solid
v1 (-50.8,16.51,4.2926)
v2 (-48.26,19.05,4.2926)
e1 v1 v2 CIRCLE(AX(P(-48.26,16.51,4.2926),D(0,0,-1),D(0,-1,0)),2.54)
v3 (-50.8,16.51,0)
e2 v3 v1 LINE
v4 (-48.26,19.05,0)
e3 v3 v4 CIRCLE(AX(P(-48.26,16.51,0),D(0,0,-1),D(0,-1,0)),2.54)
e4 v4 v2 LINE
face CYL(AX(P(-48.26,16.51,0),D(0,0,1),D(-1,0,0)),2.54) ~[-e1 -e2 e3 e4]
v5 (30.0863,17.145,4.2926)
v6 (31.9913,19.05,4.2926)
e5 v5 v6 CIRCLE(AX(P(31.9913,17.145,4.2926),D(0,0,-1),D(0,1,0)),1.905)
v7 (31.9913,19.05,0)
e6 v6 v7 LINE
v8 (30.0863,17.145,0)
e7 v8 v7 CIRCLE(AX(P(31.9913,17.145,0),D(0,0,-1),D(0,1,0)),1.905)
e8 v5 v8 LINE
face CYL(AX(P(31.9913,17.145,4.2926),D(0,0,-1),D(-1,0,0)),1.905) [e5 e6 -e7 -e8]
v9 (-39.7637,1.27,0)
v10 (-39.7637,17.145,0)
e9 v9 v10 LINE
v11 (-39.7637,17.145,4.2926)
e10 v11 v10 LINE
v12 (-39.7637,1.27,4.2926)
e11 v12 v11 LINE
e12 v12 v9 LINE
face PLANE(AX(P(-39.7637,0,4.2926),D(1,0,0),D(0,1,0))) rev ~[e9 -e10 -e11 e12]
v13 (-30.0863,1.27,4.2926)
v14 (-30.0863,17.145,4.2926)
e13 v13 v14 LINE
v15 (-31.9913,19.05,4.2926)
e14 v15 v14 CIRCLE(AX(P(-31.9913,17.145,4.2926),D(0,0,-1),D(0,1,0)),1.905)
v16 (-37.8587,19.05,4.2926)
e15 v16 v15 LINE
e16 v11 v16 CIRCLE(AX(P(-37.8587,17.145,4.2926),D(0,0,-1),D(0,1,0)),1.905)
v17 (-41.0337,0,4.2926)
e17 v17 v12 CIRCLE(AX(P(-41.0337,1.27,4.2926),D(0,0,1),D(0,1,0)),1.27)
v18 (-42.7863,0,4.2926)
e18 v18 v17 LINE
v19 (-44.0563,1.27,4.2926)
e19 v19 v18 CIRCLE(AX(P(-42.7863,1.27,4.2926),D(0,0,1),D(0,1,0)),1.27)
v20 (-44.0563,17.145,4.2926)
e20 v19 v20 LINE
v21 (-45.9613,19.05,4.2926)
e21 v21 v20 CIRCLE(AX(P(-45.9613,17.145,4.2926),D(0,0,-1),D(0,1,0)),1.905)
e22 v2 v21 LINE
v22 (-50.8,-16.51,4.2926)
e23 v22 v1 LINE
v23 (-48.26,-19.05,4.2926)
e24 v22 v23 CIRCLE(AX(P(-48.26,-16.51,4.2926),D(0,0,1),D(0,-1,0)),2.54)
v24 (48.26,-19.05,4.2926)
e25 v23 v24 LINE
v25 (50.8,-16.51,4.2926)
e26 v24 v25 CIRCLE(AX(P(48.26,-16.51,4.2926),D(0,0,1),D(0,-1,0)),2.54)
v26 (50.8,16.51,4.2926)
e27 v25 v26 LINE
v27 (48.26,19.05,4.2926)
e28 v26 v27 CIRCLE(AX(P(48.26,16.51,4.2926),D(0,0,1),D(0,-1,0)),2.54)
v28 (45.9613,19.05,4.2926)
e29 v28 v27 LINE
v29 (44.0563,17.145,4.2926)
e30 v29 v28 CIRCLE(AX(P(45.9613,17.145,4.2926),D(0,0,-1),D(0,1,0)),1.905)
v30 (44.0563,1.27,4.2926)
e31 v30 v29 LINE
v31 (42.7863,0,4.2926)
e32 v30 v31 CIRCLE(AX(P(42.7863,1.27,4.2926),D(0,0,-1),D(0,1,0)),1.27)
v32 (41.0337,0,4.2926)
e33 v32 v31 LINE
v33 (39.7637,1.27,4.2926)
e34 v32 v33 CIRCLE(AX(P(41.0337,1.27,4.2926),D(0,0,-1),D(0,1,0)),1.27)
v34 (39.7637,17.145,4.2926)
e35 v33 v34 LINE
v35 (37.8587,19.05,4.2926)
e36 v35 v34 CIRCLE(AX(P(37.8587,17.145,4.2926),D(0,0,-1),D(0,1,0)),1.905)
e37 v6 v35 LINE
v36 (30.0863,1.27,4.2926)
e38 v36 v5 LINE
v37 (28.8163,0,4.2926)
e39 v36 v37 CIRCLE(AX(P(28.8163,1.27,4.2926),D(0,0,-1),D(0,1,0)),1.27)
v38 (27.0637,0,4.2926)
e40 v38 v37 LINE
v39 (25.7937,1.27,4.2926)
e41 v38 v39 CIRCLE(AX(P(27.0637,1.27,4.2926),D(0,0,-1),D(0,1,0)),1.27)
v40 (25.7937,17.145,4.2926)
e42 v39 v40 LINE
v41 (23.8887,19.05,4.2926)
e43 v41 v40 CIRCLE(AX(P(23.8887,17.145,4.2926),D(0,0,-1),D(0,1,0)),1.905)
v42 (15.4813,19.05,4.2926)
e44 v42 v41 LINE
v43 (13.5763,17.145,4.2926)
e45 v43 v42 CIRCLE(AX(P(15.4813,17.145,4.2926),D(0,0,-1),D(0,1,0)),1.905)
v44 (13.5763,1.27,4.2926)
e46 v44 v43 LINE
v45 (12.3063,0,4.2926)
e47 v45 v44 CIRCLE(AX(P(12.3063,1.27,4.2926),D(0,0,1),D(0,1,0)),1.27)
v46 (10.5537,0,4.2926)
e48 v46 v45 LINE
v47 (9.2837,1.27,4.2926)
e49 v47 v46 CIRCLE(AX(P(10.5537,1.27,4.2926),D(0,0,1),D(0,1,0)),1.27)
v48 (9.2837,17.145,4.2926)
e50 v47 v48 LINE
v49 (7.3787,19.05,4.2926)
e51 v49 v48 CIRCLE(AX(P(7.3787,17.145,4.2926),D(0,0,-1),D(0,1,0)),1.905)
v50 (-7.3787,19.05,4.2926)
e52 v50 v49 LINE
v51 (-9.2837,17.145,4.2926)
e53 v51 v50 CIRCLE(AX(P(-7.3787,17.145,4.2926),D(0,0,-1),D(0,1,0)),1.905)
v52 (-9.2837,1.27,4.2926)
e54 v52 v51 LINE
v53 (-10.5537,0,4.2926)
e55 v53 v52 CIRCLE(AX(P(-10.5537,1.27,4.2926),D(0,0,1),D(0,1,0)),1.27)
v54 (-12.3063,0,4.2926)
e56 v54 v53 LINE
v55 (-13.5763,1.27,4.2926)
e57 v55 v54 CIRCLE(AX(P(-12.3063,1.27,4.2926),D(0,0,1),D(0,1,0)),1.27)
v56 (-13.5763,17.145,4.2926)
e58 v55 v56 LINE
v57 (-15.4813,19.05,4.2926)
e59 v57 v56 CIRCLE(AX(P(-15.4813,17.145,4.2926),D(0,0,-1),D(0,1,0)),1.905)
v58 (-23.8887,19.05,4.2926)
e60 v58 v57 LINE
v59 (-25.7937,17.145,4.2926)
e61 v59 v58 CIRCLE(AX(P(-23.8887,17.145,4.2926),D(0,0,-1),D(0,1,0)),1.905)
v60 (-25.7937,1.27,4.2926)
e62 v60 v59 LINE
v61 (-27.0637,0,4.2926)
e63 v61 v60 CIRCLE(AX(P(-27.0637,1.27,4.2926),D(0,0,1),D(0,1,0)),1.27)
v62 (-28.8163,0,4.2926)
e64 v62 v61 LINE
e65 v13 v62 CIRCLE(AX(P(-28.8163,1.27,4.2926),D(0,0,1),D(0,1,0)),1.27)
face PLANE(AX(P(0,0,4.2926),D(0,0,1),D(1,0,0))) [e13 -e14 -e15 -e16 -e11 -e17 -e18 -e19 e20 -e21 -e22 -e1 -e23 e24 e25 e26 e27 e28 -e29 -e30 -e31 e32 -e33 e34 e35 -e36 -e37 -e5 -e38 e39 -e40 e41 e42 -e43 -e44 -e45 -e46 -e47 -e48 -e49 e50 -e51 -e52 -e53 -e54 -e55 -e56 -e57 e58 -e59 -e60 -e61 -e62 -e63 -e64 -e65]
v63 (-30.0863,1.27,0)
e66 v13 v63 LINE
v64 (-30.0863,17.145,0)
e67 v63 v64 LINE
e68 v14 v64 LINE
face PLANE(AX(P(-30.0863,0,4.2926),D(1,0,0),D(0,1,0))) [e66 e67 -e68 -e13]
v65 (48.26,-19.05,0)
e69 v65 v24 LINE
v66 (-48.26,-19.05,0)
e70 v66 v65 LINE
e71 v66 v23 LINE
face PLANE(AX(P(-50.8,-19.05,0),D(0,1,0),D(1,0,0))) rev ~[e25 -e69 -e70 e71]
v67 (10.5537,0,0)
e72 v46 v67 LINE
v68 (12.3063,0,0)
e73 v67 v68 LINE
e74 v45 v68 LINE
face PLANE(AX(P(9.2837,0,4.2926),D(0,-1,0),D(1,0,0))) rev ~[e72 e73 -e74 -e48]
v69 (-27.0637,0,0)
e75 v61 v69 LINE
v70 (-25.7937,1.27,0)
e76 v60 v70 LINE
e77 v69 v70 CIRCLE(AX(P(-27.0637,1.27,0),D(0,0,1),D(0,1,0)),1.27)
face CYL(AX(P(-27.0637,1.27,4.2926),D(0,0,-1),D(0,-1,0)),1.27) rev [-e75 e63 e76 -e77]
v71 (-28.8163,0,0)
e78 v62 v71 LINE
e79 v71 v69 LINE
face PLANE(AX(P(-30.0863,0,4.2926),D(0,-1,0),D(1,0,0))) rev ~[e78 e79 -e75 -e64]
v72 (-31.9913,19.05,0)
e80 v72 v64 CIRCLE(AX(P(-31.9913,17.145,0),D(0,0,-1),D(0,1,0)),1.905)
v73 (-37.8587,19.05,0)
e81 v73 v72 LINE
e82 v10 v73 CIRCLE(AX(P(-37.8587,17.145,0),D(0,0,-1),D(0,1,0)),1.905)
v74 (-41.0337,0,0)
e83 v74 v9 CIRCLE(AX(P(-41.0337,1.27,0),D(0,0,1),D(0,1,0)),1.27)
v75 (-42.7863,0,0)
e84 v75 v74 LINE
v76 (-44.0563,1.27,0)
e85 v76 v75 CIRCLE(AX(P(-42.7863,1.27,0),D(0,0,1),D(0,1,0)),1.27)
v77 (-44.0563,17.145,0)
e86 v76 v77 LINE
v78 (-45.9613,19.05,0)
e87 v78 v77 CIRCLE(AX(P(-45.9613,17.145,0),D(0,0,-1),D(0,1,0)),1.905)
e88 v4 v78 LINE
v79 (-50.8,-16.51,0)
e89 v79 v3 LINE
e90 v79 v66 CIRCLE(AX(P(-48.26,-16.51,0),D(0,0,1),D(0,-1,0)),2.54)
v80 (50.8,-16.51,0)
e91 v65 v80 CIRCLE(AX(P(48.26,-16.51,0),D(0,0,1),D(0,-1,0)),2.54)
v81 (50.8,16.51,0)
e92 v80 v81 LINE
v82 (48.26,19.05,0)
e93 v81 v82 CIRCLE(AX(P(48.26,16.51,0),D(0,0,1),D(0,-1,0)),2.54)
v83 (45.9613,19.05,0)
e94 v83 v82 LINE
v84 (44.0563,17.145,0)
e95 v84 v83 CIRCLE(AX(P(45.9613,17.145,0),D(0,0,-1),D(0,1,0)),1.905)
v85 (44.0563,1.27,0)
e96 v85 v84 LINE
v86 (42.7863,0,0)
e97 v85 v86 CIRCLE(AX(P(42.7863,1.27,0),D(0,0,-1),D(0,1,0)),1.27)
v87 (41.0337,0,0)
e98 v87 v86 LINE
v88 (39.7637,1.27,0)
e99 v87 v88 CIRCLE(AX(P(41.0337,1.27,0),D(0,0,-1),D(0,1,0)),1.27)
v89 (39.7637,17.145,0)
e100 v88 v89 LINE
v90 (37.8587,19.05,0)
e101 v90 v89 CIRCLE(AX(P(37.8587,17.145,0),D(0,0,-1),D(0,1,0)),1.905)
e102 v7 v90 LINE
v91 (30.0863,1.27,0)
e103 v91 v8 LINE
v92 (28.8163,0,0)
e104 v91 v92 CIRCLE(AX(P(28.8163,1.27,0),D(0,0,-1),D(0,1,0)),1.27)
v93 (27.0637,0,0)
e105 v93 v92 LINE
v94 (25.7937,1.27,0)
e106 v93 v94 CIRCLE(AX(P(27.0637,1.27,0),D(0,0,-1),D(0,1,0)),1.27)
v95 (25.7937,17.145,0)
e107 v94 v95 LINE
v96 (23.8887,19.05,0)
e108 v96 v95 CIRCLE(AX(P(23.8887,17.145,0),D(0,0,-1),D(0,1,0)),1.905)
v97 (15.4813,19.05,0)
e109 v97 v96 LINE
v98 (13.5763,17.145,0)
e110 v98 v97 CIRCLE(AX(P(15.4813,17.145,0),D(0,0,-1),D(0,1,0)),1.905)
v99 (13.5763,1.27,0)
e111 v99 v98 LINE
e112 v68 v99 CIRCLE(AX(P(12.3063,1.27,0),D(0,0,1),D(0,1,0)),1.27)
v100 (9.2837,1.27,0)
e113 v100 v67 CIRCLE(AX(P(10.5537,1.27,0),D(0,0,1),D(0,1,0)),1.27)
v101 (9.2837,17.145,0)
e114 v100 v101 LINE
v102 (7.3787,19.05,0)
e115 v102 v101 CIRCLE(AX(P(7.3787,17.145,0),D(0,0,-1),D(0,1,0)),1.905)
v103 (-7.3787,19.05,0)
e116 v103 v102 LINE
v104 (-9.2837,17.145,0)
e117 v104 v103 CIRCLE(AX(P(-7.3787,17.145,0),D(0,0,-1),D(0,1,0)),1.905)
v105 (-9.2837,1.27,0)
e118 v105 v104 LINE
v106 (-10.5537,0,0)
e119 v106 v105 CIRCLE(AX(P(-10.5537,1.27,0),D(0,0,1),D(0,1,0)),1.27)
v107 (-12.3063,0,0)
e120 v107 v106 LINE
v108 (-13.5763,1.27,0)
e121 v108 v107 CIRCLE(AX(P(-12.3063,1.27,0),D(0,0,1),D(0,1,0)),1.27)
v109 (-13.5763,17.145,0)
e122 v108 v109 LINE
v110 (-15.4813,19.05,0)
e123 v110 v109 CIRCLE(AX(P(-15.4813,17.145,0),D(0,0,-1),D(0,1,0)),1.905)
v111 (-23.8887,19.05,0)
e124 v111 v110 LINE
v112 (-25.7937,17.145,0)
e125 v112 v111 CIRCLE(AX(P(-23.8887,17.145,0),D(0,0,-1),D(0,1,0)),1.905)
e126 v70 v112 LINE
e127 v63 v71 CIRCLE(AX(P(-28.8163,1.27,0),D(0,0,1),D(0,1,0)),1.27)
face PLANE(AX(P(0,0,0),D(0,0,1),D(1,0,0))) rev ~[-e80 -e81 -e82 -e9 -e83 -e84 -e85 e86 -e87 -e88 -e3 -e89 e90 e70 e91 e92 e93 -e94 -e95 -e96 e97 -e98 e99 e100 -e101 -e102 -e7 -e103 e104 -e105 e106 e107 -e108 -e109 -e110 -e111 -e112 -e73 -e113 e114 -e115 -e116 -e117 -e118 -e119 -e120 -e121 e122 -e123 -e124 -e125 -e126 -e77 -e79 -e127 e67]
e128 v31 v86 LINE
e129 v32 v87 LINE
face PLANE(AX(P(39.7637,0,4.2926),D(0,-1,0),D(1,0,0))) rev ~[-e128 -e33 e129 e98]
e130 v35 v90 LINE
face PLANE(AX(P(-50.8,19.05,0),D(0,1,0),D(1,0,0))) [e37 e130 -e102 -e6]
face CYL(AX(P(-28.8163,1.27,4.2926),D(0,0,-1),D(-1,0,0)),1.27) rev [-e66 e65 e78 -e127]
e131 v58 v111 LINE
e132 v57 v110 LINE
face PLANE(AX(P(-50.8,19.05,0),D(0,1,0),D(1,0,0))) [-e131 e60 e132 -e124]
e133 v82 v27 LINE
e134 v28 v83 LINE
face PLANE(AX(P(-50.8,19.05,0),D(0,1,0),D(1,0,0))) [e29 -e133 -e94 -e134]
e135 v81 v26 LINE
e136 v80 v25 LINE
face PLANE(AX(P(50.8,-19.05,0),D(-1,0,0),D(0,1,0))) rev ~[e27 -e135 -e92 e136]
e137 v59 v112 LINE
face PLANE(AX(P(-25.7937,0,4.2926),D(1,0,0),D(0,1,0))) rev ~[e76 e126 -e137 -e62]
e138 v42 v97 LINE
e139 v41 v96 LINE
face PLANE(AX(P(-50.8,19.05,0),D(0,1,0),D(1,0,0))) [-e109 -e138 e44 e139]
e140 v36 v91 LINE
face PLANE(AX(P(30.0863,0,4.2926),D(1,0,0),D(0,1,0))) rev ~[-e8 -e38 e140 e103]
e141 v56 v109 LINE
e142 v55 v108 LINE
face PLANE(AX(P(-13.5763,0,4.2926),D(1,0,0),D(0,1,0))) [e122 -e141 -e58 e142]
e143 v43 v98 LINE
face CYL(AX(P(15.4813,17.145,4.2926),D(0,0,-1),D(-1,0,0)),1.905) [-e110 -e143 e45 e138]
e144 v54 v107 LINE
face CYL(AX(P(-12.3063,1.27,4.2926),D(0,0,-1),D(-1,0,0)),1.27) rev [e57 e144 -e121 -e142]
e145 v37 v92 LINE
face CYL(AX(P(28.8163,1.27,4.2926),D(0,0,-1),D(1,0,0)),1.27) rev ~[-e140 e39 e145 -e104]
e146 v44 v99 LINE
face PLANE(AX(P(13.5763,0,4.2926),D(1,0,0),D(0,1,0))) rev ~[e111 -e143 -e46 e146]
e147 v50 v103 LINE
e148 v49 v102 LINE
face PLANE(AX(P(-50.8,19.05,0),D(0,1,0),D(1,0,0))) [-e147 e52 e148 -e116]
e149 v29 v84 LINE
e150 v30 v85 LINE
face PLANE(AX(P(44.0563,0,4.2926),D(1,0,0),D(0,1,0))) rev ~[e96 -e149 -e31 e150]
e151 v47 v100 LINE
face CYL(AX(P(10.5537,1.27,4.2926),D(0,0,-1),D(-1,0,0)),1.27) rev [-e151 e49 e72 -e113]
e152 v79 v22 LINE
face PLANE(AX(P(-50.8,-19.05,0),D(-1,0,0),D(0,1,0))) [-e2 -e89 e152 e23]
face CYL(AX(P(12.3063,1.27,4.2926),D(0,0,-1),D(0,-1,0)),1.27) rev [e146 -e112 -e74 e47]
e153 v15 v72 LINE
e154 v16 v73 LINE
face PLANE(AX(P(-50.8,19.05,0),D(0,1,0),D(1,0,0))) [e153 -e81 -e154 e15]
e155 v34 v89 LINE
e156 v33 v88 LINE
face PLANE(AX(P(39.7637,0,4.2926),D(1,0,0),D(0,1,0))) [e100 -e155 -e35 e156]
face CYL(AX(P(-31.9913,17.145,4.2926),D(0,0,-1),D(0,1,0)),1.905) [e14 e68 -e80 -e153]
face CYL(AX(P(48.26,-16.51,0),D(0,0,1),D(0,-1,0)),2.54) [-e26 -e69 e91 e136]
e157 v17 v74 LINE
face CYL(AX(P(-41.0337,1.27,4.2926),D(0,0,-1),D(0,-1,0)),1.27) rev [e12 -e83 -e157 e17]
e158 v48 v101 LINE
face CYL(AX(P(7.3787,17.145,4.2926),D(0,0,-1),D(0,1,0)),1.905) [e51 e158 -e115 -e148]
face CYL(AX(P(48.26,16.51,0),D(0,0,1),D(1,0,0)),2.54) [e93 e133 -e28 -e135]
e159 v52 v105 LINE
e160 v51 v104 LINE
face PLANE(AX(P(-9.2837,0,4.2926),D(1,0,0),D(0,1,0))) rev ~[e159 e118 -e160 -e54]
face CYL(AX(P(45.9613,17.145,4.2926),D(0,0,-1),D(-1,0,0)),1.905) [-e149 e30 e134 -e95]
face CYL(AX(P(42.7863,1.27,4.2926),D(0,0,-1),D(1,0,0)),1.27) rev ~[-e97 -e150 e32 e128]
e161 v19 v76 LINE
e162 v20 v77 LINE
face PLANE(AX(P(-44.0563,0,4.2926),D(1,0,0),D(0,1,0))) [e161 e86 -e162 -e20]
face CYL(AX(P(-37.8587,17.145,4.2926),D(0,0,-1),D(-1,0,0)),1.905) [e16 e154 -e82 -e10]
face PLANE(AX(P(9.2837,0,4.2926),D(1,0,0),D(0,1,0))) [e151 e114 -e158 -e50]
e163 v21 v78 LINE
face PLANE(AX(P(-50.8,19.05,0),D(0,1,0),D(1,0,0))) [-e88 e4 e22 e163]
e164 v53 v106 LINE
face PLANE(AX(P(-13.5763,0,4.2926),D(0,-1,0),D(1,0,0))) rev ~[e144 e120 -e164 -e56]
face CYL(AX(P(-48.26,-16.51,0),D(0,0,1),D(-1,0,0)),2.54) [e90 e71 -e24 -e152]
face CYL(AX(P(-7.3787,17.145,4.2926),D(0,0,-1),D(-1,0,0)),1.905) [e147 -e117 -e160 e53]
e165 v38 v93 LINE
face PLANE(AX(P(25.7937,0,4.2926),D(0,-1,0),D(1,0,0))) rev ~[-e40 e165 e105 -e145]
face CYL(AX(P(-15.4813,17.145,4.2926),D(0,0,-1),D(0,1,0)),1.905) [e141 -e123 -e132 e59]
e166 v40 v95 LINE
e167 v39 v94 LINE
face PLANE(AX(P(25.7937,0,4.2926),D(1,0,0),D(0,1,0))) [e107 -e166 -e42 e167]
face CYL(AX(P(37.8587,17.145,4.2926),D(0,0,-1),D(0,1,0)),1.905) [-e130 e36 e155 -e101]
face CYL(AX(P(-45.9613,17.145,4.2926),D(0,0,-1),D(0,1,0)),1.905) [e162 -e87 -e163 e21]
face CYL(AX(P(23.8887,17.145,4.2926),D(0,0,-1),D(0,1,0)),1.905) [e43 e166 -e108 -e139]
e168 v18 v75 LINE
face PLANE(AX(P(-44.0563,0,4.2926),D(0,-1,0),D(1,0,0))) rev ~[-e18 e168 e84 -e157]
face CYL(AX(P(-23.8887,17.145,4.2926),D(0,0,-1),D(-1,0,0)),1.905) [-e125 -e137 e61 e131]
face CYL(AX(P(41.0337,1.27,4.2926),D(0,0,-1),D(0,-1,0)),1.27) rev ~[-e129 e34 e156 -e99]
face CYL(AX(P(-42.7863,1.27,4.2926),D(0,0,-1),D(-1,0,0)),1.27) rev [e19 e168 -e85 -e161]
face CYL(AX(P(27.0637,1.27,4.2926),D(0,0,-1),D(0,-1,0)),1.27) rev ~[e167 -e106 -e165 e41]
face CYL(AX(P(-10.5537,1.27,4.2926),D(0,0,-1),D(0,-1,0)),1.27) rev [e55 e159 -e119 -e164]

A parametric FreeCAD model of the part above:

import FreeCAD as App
import Part
import Sketcher
Q = App.Units.Quantity


def edges_at(feature, points):
    """Names of the edges that pass closest to the given points."""
    edges = feature.Shape.Edges
    near = lambda p: min(range(len(edges)), key=lambda i: edges[i].distToShape(Part.Vertex(*p))[0])
    return sorted({f"Edge{near(p) + 1}" for p in points})


def add_polygon(sketch, points):
    """Adds a closed chain of lines whose ends are joined by coincident constraints."""
    first, n = sketch.GeometryCount, len(points)
    for a, b in zip(points, points[1:] + points[:1]):
        sketch.addGeometry(Part.LineSegment(App.Vector(*a, 0), App.Vector(*b, 0)), False)
    for i in range(n):
        sketch.addConstraint(Sketcher.Constraint("Coincident", first + i, 2, first + (i + 1) % n, 1))

doc = App.newDocument("Part")
body = doc.addObject("PartDesign::Body", "Body")

sketch1 = doc.addObject("Sketcher::SketchObject", "Sketch")
body.addObject(sketch1)
sketch1.AttachmentSupport = (doc.XY_Plane, [""])
sketch1.MapMode = "FlatFace"
add_polygon(sketch1, [(-51, 19), (-51, -19), (51, -19), (51, 19)])
sketch1.addConstraint([
    Sketcher.Constraint("Vertical", 0),
    Sketcher.Constraint("Horizontal", 1),
    Sketcher.Constraint("Vertical", 2),
    Sketcher.Constraint("Horizontal", 3),
    Sketcher.Constraint("Symmetric", 0, 2, 2, 2, -1, 1),
    Sketcher.Constraint("DistanceX", 1, 1, 1, 2, Q("4 in")),
    Sketcher.Constraint("DistanceY", 0, 2, 0, 1, Q("1.5 in")),
])
pad1 = doc.addObject("PartDesign::Pad", "Pad")
body.addObject(pad1)
pad1.Profile = sketch1
pad1.Length = Q("0.169 in")
doc.recompute()

fillet = doc.addObject("PartDesign::Fillet", "Fillet")
body.addObject(fillet)
fillet.Base = (pad1, edges_at(pad1, [
    (50.8, -19.05, 2.146),
    (-50.8, -19.05, 2.146),
    (-50.8, 19.05, 2.146),
    (50.8, 19.05, 2.146),
]))
fillet.Radius = Q("0.1 in")

sketch2 = doc.addObject("Sketcher::SketchObject", "Sketch001")
body.addObject(sketch2)
sketch2.AttachmentSupport = (doc.XY_Plane, [""])
sketch2.MapMode = "FlatFace"
sketch2.AttachmentOffset = App.Placement(App.Vector(0, 0, 0.169 * 25.4), App.Rotation())
add_polygon(sketch2, [(-44.1, 19.1), (-44.1, 0), (-39.8, 0), (-39.8, 19.1)])
add_polygon(sketch2, [(-30.1, 19.1), (-30.1, 0), (-25.8, 0), (-25.8, 19.1)])
add_polygon(sketch2, [(-13.6, 19.1), (-13.6, 0), (-9.3, 0), (-9.3, 19.1)])
add_polygon(sketch2, [(9.3, 19.1), (9.3, 0), (13.6, 0), (13.6, 19.1)])
add_polygon(sketch2, [(25.8, 19.1), (25.8, 0), (30.1, 0), (30.1, 19.1)])
add_polygon(sketch2, [(39.8, 19.1), (39.8, 0), (44.1, 0), (44.1, 19.1)])
sketch2.addConstraint([
    Sketcher.Constraint("Vertical", 0),
    Sketcher.Constraint("Horizontal", 1),
    Sketcher.Constraint("Vertical", 2),
    Sketcher.Constraint("Horizontal", 3),
    Sketcher.Constraint("Vertical", 4),
    Sketcher.Constraint("Horizontal", 5),
    Sketcher.Constraint("Vertical", 6),
    Sketcher.Constraint("Horizontal", 7),
    Sketcher.Constraint("Vertical", 8),
    Sketcher.Constraint("Horizontal", 9),
    Sketcher.Constraint("Vertical", 10),
    Sketcher.Constraint("Horizontal", 11),
    Sketcher.Constraint("Vertical", 12),
    Sketcher.Constraint("Horizontal", 13),
    Sketcher.Constraint("Vertical", 14),
    Sketcher.Constraint("Horizontal", 15),
    Sketcher.Constraint("Vertical", 16),
    Sketcher.Constraint("Horizontal", 17),
    Sketcher.Constraint("Vertical", 18),
    Sketcher.Constraint("Horizontal", 19),
    Sketcher.Constraint("Vertical", 20),
    Sketcher.Constraint("Horizontal", 21),
    Sketcher.Constraint("Vertical", 22),
    Sketcher.Constraint("Horizontal", 23),
    Sketcher.Constraint("Symmetric", 9, 2, 12, 2, -1, 1),
    Sketcher.Constraint("Symmetric", 5, 2, 16, 2, -1, 1),
    Sketcher.Constraint("Symmetric", 1, 2, 20, 2, -1, 1),
    Sketcher.Constraint("Symmetric", 8, 2, 13, 2, -2),
    Sketcher.Constraint("Symmetric", 4, 2, 17, 2, -2),
    Sketcher.Constraint("Symmetric", 0, 2, 21, 2, -2),
    Sketcher.Constraint("Horizontal", 3, 2, 6, 2),
    Sketcher.Constraint("Horizontal", 7, 2, 10, 2),
    Sketcher.Constraint("Horizontal", 11, 2, 14, 2),
    Sketcher.Constraint("Horizontal", 15, 2, 18, 2),
    Sketcher.Constraint("Horizontal", 19, 2, 22, 2),
    Sketcher.Constraint("Equal", 3, 5),
    Sketcher.Constraint("Equal", 7, 9),
    Sketcher.Constraint("DistanceY", 0, 2, 0, 1, Q("0.75 in")),
    Sketcher.Constraint("DistanceX", 8, 2, 12, 2, Q("0.9 in")),
    Sketcher.Constraint("DistanceX", 1, 1, 1, 2, Q("0.169 in")),
    Sketcher.Constraint("DistanceX", 0, 2, 4, 2, Q("0.55 in")),
    Sketcher.Constraint("DistanceX", 4, 2, 8, 2, Q("0.65 in")),
])
pocket1 = doc.addObject("PartDesign::Pocket", "Pocket")
body.addObject(pocket1)
pocket1.Profile = sketch2
pocket1.Length = Q("0.169 in")
doc.recompute()

fillet2 = doc.addObject("PartDesign::Fillet", "Fillet001")
body.addObject(fillet2)
fillet2.Base = (pocket1, edges_at(pocket1, [
    (-39.764, 19.05, 2.146),
    (-44.056, 19.05, 2.146),
    (-25.794, 19.05, 2.146),
    (-30.086, 19.05, 2.146),
    (-9.284, 19.05, 2.146),
    (-13.576, 19.05, 2.146),
    (13.576, 19.05, 2.146),
    (9.284, 19.05, 2.146),
    (30.086, 19.05, 2.146),
    (25.794, 19.05, 2.146),
    (44.056, 19.05, 2.146),
    (39.764, 19.05, 2.146),
]))
fillet2.Radius = Q("0.075 in")
doc.recompute()

fillet3 = doc.addObject("PartDesign::Fillet", "Fillet002")
body.addObject(fillet3)
fillet3.Base = (fillet2, edges_at(fillet2, [
    (-39.764, 0, 2.146),
    (-44.056, 0, 2.146),
    (-25.794, 0, 2.146),
    (-30.086, 0, 2.146),
    (-9.284, 0, 2.146),
    (-13.576, 0, 2.146),
    (13.576, 0, 2.146),
    (9.284, 0, 2.146),
    (30.086, 0, 2.146),
    (25.794, 0, 2.146),
    (44.056, 0, 2.146),
    (39.764, 0, 2.146),
]))
fillet3.Radius = Q("0.05 in")

doc.recompute()
